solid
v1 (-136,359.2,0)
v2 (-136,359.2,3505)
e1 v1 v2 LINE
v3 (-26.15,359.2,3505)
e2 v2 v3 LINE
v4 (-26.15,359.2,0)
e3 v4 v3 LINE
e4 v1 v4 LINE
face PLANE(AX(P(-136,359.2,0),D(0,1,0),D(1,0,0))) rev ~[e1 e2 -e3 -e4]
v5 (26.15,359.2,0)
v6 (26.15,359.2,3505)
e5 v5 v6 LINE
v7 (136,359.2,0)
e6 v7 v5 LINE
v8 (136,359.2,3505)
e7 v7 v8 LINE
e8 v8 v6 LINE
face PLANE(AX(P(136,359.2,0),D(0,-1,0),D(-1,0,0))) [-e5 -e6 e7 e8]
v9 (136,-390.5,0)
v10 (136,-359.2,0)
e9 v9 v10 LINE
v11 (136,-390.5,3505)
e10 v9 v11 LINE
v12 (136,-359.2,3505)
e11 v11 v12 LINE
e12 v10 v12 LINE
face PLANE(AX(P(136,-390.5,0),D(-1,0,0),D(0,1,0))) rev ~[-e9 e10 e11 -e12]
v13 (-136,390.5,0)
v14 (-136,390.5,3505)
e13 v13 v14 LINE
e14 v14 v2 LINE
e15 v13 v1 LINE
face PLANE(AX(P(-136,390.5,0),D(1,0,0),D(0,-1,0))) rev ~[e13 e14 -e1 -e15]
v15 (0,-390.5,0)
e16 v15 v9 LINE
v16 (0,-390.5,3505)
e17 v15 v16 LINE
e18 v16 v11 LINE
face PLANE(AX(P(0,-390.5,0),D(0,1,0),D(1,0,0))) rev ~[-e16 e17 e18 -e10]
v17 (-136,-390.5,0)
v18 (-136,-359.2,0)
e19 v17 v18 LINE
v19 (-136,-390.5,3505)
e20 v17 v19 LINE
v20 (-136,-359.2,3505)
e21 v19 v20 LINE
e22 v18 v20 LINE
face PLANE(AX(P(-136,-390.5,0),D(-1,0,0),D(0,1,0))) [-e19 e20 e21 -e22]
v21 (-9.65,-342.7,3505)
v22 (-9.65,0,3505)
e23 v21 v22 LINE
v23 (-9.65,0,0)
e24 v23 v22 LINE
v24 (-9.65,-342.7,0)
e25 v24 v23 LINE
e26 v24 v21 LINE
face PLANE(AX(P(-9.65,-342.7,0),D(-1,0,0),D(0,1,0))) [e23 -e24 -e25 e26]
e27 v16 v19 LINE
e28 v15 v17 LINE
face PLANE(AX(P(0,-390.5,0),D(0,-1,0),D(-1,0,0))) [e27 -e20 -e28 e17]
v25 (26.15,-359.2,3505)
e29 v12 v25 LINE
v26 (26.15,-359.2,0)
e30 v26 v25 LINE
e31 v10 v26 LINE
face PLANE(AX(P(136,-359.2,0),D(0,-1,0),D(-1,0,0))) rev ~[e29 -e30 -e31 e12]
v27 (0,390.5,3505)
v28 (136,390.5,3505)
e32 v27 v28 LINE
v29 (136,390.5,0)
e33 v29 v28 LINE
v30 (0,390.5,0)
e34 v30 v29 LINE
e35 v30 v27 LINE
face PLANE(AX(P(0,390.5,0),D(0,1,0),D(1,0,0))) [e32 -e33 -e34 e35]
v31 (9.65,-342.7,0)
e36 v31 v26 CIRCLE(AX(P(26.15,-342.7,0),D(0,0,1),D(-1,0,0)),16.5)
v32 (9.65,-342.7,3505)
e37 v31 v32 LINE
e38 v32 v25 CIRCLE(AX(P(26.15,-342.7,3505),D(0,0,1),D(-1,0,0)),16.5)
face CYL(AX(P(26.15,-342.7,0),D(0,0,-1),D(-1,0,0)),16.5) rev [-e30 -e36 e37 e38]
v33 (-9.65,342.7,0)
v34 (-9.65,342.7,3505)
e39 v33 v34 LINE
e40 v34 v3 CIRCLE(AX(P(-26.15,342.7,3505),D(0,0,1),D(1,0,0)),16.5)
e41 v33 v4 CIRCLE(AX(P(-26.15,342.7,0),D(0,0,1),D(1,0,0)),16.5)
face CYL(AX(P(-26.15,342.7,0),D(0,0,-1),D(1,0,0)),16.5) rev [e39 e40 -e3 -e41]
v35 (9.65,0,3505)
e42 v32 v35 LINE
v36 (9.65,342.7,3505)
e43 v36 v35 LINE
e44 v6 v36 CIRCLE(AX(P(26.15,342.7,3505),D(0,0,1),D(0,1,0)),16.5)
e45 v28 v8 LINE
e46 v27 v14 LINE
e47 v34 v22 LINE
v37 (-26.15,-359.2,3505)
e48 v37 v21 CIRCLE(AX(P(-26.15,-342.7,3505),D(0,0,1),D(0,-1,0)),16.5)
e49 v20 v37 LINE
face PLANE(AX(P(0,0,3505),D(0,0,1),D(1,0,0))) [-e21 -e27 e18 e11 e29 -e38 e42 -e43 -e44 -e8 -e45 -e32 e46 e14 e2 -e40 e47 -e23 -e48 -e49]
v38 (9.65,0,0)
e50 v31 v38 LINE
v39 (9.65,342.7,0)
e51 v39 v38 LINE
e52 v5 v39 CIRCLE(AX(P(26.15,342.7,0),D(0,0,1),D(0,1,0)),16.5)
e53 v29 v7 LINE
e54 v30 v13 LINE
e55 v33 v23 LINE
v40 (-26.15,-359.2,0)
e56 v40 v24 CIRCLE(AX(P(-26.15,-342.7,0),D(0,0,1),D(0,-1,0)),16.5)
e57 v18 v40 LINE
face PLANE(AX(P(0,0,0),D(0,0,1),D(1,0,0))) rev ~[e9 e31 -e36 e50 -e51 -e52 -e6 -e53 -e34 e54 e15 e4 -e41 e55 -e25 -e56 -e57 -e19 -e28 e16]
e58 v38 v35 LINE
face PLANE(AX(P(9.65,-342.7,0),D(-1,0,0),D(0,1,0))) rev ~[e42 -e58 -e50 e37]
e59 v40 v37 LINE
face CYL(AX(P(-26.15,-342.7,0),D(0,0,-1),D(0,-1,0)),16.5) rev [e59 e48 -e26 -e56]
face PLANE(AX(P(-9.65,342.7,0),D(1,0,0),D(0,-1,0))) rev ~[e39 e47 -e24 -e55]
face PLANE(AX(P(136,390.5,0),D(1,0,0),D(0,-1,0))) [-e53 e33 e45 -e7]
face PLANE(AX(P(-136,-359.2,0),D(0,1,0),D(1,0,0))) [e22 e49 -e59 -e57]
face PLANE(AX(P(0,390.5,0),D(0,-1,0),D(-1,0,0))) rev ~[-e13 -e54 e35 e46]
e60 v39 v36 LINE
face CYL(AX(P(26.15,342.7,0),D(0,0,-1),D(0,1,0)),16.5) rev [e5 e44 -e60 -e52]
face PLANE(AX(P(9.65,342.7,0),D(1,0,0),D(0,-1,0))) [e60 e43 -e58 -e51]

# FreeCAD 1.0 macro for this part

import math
import FreeCAD as App
import Part
import Sketcher
from FreeCAD import Vector
Q = App.Units.Quantity

doc = App.newDocument("Part")
params = doc.addObject("Spreadsheet::Sheet", "Params")
for row, (alias, value) in enumerate([
    ("sketch1_radius", "16.5 mm"),
    ("sketch1_height", "31.3 mm"),
    ("pad1_length", "3505 mm"),
], start=1):
    params.set(f"A{row}", alias)
    params.set(f"B{row}", "=" + value)
    params.setAlias(f"B{row}", alias)

body = doc.addObject("PartDesign::Body", "Body")

sketch1 = doc.addObject("Sketcher::SketchObject", "Sketch")
body.addObject(sketch1)
sketch1.AttachmentSupport = (doc.XY_Plane, [""])
sketch1.MapMode = "FlatFace"
sketch1.addGeometry([
    Part.LineSegment(Vector(-136, -359, 0), Vector(-136, -390, 0)),
    Part.LineSegment(Vector(-136, -390, 0), Vector(136, -390, 0)),
    Part.LineSegment(Vector(136, -390, 0), Vector(136, -359, 0)),
    Part.LineSegment(Vector(136, -359, 0), Vector(26, -359, 0)),
    Part.ArcOfCircle(Part.Circle(Vector(26, -343, 0), Vector(0, 0, 1), 16), math.radians(180), math.radians(270)),
    Part.LineSegment(Vector(10, -343, 0), Vector(10, 343, 0)),
    Part.ArcOfCircle(Part.Circle(Vector(26, 343, 0), Vector(0, 0, 1), 16), math.radians(90), math.radians(180)),
    Part.LineSegment(Vector(26, 359, 0), Vector(136, 359, 0)),
    Part.LineSegment(Vector(136, 359, 0), Vector(136, 390, 0)),
    Part.LineSegment(Vector(136, 390, 0), Vector(-136, 390, 0)),
    Part.LineSegment(Vector(-136, 390, 0), Vector(-136, 359, 0)),
    Part.LineSegment(Vector(-136, 359, 0), Vector(-26, 359, 0)),
    Part.ArcOfCircle(Part.Circle(Vector(-26, 343, 0), Vector(0, 0, 1), 16), math.radians(0), math.radians(90)),
    Part.LineSegment(Vector(-10, 343, 0), Vector(-10, -343, 0)),
    Part.ArcOfCircle(Part.Circle(Vector(-26, -343, 0), Vector(0, 0, 1), 16), math.radians(-90), math.radians(0)),
    Part.LineSegment(Vector(-26, -359, 0), Vector(-136, -359, 0)),
], False)
sketch1.addConstraint([
    Sketcher.Constraint("Coincident", 0, 2, 1, 1),
    Sketcher.Constraint("Coincident", 1, 2, 2, 1),
    Sketcher.Constraint("Coincident", 2, 2, 3, 1),
    Sketcher.Constraint("Tangent", 3, 2, 4, 2),
    Sketcher.Constraint("Tangent", 4, 1, 5, 1),
    Sketcher.Constraint("Tangent", 5, 2, 6, 2),
    Sketcher.Constraint("Tangent", 6, 1, 7, 1),
    Sketcher.Constraint("Coincident", 7, 2, 8, 1),
    Sketcher.Constraint("Coincident", 8, 2, 9, 1),
    Sketcher.Constraint("Coincident", 9, 2, 10, 1),
    Sketcher.Constraint("Coincident", 10, 2, 11, 1),
    Sketcher.Constraint("Tangent", 11, 2, 12, 2),
    Sketcher.Constraint("Tangent", 12, 1, 13, 1),
    Sketcher.Constraint("Tangent", 13, 2, 14, 2),
    Sketcher.Constraint("Tangent", 14, 1, 15, 1),
    Sketcher.Constraint("Coincident", 15, 2, 0, 1),
    Sketcher.Constraint("Vertical", 0),
    Sketcher.Constraint("Horizontal", 1),
    Sketcher.Constraint("Vertical", 2),
    Sketcher.Constraint("Horizontal", 3),
    Sketcher.Constraint("Vertical", 5),
    Sketcher.Constraint("Horizontal", 7),
    Sketcher.Constraint("Vertical", 8),
    Sketcher.Constraint("Horizontal", 9),
    Sketcher.Constraint("Vertical", 10),
    Sketcher.Constraint("Horizontal", 11),
    Sketcher.Constraint("Vertical", 13),
    Sketcher.Constraint("Horizontal", 15),
    Sketcher.Constraint("Equal", 4, 6),
    Sketcher.Constraint("Equal", 6, 12),
    Sketcher.Constraint("Equal", 12, 14),
    Sketcher.Constraint("Symmetric", 4, 3, 12, 3, -1, 1),
    Sketcher.Constraint("Symmetric", 0, 2, 8, 2, -1, 1),
    Sketcher.Constraint("Symmetric", 7, 2, 10, 2, -2),
    Sketcher.Constraint("Symmetric", 2, 2, 15, 2, -2),
    Sketcher.Constraint("Radius", 4, Q("16.5 mm")),
    Sketcher.Constraint("DistanceY", 0, 2, 0, 1, Q("31.3 mm")),
    Sketcher.Constraint("DistanceX", 0, 2, -1, 1, Q("136 mm")),
    Sketcher.Constraint("DistanceY", 0, 2, -1, 1, Q("390.5 mm")),
    Sketcher.Constraint("DistanceX", -1, 1, 4, 1, Q("9.65 mm")),
])
sketch1.setExpression("Constraints[35]", "Params.sketch1_radius")
sketch1.setExpression("Constraints[36]", "Params.sketch1_height")
pad1 = doc.addObject("PartDesign::Pad", "Pad")
body.addObject(pad1)
pad1.Profile = sketch1
pad1.setExpression("Length", "Params.pad1_length")

doc.recompute()
